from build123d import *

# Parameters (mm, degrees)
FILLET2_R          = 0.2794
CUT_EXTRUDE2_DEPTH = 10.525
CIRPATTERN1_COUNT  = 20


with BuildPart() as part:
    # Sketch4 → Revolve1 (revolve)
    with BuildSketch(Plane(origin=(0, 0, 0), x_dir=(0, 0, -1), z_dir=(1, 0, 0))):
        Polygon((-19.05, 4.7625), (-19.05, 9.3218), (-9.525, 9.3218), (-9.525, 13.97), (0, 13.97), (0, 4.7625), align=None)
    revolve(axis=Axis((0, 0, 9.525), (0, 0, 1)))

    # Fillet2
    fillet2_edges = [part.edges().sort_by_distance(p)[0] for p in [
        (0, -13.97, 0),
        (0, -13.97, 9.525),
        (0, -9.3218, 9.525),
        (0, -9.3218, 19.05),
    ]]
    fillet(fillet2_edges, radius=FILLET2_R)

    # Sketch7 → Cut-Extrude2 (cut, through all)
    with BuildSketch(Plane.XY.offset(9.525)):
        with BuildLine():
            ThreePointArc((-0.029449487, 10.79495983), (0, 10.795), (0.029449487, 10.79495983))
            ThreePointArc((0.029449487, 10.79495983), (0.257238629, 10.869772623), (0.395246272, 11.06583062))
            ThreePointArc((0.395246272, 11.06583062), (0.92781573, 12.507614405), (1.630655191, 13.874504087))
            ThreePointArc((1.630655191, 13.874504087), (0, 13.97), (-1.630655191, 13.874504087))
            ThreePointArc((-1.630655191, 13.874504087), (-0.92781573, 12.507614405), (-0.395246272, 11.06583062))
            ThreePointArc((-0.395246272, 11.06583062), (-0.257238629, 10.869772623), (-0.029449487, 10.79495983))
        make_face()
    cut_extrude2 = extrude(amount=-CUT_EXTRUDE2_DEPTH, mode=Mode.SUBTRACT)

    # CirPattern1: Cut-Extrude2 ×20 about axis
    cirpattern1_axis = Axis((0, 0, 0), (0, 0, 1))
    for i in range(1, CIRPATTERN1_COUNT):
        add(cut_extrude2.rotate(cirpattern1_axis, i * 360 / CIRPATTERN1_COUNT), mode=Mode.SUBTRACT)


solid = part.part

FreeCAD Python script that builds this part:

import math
import FreeCAD as App
import Part
import Sketcher

V = App.Vector
Q = App.Units.Quantity


def edges_at(feature, points):
    """Names of the edges that pass closest to the given points."""
    edges = feature.Shape.Edges
    near = lambda p: min(range(len(edges)), key=lambda i: edges[i].distToShape(Part.Vertex(*p))[0])
    return sorted({f"Edge{near(p) + 1}" for p in points})

doc = App.newDocument("Part")
body = doc.addObject("PartDesign::Body", "Body")

sketch1 = body.newObject("Sketcher::SketchObject", "Sketch")
sketch1.AttachmentSupport = (doc.getObject("YZ_Plane"), [""])
sketch1.MapMode = "FlatFace"
sketch1.addGeometry(Part.LineSegment(V(9.3218, 19.05, 0), V(4.7625, 19.05, 0)), False)
sketch1.addGeometry(Part.LineSegment(V(4.7625, 19.05, 0), V(4.7625, 0, 0)), False)
sketch1.addGeometry(Part.LineSegment(V(4.7625, 0, 0), V(13.97, 0, 0)), False)
sketch1.addGeometry(Part.LineSegment(V(13.97, 0, 0), V(13.97, 9.525, 0)), False)
sketch1.addGeometry(Part.LineSegment(V(13.97, 9.525, 0), V(9.3218, 9.525, 0)), False)
sketch1.addGeometry(Part.LineSegment(V(9.3218, 9.525, 0), V(9.3218, 19.05, 0)), False)
sketch1.addConstraint(Sketcher.Constraint("Coincident", 0, 2, 1, 1))
sketch1.addConstraint(Sketcher.Constraint("Coincident", 1, 2, 2, 1))
sketch1.addConstraint(Sketcher.Constraint("Coincident", 2, 2, 3, 1))
sketch1.addConstraint(Sketcher.Constraint("Coincident", 3, 2, 4, 1))
sketch1.addConstraint(Sketcher.Constraint("Coincident", 4, 2, 5, 1))
sketch1.addConstraint(Sketcher.Constraint("Coincident", 5, 2, 0, 1))
sketch1.addConstraint(Sketcher.Constraint("Horizontal", 0))
sketch1.addConstraint(Sketcher.Constraint("Vertical", 1))
sketch1.addConstraint(Sketcher.Constraint("Horizontal", 2))
sketch1.addConstraint(Sketcher.Constraint("Vertical", 3))
sketch1.addConstraint(Sketcher.Constraint("Horizontal", 4))
sketch1.addConstraint(Sketcher.Constraint("Vertical", 5))
sketch1.addConstraint(Sketcher.Constraint("PointOnObject", 1, 2, -1))
sketch1.addConstraint(Sketcher.Constraint("Equal", 3, 5))
sketch1.addConstraint(Sketcher.Constraint("DistanceY", 1, 2, 1, 1, Q("0.75 in")))
sketch1.addConstraint(Sketcher.Constraint("DistanceX", 4, 2, 4, 1, Q("0.183 in")))
sketch1.addConstraint(Sketcher.Constraint("DistanceX", -1, 1, 2, 2, Q("0.55 in")))
sketch1.addConstraint(Sketcher.Constraint("DistanceX", 0, 2, 0, 1, Q("0.1795 in")))
revolution = body.newObject("PartDesign::Revolution", "Revolution")
revolution.Profile = sketch1
revolution.ReferenceAxis = (sketch1, ["V_Axis"])
revolution.Angle = 360
doc.recompute()

fillet = body.newObject("PartDesign::Fillet", "Fillet")
fillet.Base = (revolution, edges_at(revolution, [
    (0, -13.97, 0),
    (0, -13.97, 9.525),
    (0, -9.322, 9.525),
    (0, -9.322, 19.05),
]))
fillet.Radius = Q("0.011 in")

sketch2 = body.newObject("Sketcher::SketchObject", "Sketch001")
sketch2.AttachmentSupport = (doc.getObject("XY_Plane"), [""])
sketch2.MapMode = "FlatFace"
sketch2.AttachmentOffset = App.Placement(V(0, 0, 0.375 * 25.4), App.Rotation())
sketch2.addGeometry(Part.ArcOfCircle(Part.Circle(V(0, -0.000045, 0), V(0, 0, 1), 10.795045), math.radians(89.843694), math.radians(90.156306)), False)
sketch2.addGeometry(Part.ArcOfCircle(Part.Circle(V(0.030489, 11.175986, 0), V(0, 0, 1), 0.381028), math.radians(-90.156307), math.radians(-16.804147)), False)
sketch2.addGeometry(Part.ArcOfCircle(Part.Circle(V(12.552938, 7.394247, 0), V(0, 0, 1), 12.7), math.radians(149.319085), math.radians(163.195853)), False)
sketch2.addGeometry(Part.ArcOfCircle(Part.Circle(V(0, 0, 0), V(0, 0, 1), 13.97), math.radians(83.296841), math.radians(96.703159)), False)
sketch2.addGeometry(Part.ArcOfCircle(Part.Circle(V(-12.552938, 7.394247, 0), V(0, 0, 1), 12.7), math.radians(16.804147), math.radians(30.680915)), False)
sketch2.addGeometry(Part.ArcOfCircle(Part.Circle(V(-0.030489, 11.175986, 0), V(0, 0, 1), 0.381028), math.radians(-163.195853), math.radians(-89.843693)), False)
sketch2.addConstraint(Sketcher.Constraint("Tangent", 0, 1, 1, 1))
sketch2.addConstraint(Sketcher.Constraint("Tangent", 1, 2, 2, 2))
sketch2.addConstraint(Sketcher.Constraint("Coincident", 2, 1, 3, 1))
sketch2.addConstraint(Sketcher.Constraint("Coincident", 3, 2, 4, 2))
sketch2.addConstraint(Sketcher.Constraint("Tangent", 4, 1, 5, 1))
sketch2.addConstraint(Sketcher.Constraint("Tangent", 5, 2, 0, 2))
sketch2.addConstraint(Sketcher.Constraint("Coincident", 3, 3, -1, 1))
sketch2.addConstraint(Sketcher.Constraint("Equal", 2, 4))
sketch2.addConstraint(Sketcher.Constraint("Equal", 1, 5))
sketch2.addConstraint(Sketcher.Constraint("Symmetric", 2, 3, 4, 3, -2))
sketch2.addConstraint(Sketcher.Constraint("PointOnObject", 0, 3, -2))
sketch2.addConstraint(Sketcher.Constraint("Radius", 2, Q("0.5 in")))
sketch2.addConstraint(Sketcher.Constraint("Radius", 3, Q("0.55 in")))
sketch2.addConstraint(Sketcher.Constraint("DistanceY", 0, 3, 0, 1, Q("0.4250002 in")))
sketch2.addConstraint(Sketcher.Constraint("Radius", 1, 0.381028))
sketch2.addConstraint(Sketcher.Constraint("DistanceX", 3, 2, 1, 2, 2.025901))
sketch2.addConstraint(Sketcher.Constraint("DistanceX", 5, 2, 0, 1, 0.058899))
sketch2.addConstraint(Sketcher.Constraint("DistanceX", -1, 1, 2, 3, 12.552938))
pocket1 = body.newObject("PartDesign::Pocket", "Pocket")
pocket1.Profile = sketch2
pocket1.Type = "ThroughAll"
doc.recompute()

polarpattern = body.newObject("PartDesign::PolarPattern", "PolarPattern")
polarpattern.Originals = [pocket1]
polarpattern.Axis = (doc.getObject("Z_Axis"), [""])
polarpattern.Angle = 360
polarpattern.Occurrences = 20
body.Tip = polarpattern

doc.recompute()
